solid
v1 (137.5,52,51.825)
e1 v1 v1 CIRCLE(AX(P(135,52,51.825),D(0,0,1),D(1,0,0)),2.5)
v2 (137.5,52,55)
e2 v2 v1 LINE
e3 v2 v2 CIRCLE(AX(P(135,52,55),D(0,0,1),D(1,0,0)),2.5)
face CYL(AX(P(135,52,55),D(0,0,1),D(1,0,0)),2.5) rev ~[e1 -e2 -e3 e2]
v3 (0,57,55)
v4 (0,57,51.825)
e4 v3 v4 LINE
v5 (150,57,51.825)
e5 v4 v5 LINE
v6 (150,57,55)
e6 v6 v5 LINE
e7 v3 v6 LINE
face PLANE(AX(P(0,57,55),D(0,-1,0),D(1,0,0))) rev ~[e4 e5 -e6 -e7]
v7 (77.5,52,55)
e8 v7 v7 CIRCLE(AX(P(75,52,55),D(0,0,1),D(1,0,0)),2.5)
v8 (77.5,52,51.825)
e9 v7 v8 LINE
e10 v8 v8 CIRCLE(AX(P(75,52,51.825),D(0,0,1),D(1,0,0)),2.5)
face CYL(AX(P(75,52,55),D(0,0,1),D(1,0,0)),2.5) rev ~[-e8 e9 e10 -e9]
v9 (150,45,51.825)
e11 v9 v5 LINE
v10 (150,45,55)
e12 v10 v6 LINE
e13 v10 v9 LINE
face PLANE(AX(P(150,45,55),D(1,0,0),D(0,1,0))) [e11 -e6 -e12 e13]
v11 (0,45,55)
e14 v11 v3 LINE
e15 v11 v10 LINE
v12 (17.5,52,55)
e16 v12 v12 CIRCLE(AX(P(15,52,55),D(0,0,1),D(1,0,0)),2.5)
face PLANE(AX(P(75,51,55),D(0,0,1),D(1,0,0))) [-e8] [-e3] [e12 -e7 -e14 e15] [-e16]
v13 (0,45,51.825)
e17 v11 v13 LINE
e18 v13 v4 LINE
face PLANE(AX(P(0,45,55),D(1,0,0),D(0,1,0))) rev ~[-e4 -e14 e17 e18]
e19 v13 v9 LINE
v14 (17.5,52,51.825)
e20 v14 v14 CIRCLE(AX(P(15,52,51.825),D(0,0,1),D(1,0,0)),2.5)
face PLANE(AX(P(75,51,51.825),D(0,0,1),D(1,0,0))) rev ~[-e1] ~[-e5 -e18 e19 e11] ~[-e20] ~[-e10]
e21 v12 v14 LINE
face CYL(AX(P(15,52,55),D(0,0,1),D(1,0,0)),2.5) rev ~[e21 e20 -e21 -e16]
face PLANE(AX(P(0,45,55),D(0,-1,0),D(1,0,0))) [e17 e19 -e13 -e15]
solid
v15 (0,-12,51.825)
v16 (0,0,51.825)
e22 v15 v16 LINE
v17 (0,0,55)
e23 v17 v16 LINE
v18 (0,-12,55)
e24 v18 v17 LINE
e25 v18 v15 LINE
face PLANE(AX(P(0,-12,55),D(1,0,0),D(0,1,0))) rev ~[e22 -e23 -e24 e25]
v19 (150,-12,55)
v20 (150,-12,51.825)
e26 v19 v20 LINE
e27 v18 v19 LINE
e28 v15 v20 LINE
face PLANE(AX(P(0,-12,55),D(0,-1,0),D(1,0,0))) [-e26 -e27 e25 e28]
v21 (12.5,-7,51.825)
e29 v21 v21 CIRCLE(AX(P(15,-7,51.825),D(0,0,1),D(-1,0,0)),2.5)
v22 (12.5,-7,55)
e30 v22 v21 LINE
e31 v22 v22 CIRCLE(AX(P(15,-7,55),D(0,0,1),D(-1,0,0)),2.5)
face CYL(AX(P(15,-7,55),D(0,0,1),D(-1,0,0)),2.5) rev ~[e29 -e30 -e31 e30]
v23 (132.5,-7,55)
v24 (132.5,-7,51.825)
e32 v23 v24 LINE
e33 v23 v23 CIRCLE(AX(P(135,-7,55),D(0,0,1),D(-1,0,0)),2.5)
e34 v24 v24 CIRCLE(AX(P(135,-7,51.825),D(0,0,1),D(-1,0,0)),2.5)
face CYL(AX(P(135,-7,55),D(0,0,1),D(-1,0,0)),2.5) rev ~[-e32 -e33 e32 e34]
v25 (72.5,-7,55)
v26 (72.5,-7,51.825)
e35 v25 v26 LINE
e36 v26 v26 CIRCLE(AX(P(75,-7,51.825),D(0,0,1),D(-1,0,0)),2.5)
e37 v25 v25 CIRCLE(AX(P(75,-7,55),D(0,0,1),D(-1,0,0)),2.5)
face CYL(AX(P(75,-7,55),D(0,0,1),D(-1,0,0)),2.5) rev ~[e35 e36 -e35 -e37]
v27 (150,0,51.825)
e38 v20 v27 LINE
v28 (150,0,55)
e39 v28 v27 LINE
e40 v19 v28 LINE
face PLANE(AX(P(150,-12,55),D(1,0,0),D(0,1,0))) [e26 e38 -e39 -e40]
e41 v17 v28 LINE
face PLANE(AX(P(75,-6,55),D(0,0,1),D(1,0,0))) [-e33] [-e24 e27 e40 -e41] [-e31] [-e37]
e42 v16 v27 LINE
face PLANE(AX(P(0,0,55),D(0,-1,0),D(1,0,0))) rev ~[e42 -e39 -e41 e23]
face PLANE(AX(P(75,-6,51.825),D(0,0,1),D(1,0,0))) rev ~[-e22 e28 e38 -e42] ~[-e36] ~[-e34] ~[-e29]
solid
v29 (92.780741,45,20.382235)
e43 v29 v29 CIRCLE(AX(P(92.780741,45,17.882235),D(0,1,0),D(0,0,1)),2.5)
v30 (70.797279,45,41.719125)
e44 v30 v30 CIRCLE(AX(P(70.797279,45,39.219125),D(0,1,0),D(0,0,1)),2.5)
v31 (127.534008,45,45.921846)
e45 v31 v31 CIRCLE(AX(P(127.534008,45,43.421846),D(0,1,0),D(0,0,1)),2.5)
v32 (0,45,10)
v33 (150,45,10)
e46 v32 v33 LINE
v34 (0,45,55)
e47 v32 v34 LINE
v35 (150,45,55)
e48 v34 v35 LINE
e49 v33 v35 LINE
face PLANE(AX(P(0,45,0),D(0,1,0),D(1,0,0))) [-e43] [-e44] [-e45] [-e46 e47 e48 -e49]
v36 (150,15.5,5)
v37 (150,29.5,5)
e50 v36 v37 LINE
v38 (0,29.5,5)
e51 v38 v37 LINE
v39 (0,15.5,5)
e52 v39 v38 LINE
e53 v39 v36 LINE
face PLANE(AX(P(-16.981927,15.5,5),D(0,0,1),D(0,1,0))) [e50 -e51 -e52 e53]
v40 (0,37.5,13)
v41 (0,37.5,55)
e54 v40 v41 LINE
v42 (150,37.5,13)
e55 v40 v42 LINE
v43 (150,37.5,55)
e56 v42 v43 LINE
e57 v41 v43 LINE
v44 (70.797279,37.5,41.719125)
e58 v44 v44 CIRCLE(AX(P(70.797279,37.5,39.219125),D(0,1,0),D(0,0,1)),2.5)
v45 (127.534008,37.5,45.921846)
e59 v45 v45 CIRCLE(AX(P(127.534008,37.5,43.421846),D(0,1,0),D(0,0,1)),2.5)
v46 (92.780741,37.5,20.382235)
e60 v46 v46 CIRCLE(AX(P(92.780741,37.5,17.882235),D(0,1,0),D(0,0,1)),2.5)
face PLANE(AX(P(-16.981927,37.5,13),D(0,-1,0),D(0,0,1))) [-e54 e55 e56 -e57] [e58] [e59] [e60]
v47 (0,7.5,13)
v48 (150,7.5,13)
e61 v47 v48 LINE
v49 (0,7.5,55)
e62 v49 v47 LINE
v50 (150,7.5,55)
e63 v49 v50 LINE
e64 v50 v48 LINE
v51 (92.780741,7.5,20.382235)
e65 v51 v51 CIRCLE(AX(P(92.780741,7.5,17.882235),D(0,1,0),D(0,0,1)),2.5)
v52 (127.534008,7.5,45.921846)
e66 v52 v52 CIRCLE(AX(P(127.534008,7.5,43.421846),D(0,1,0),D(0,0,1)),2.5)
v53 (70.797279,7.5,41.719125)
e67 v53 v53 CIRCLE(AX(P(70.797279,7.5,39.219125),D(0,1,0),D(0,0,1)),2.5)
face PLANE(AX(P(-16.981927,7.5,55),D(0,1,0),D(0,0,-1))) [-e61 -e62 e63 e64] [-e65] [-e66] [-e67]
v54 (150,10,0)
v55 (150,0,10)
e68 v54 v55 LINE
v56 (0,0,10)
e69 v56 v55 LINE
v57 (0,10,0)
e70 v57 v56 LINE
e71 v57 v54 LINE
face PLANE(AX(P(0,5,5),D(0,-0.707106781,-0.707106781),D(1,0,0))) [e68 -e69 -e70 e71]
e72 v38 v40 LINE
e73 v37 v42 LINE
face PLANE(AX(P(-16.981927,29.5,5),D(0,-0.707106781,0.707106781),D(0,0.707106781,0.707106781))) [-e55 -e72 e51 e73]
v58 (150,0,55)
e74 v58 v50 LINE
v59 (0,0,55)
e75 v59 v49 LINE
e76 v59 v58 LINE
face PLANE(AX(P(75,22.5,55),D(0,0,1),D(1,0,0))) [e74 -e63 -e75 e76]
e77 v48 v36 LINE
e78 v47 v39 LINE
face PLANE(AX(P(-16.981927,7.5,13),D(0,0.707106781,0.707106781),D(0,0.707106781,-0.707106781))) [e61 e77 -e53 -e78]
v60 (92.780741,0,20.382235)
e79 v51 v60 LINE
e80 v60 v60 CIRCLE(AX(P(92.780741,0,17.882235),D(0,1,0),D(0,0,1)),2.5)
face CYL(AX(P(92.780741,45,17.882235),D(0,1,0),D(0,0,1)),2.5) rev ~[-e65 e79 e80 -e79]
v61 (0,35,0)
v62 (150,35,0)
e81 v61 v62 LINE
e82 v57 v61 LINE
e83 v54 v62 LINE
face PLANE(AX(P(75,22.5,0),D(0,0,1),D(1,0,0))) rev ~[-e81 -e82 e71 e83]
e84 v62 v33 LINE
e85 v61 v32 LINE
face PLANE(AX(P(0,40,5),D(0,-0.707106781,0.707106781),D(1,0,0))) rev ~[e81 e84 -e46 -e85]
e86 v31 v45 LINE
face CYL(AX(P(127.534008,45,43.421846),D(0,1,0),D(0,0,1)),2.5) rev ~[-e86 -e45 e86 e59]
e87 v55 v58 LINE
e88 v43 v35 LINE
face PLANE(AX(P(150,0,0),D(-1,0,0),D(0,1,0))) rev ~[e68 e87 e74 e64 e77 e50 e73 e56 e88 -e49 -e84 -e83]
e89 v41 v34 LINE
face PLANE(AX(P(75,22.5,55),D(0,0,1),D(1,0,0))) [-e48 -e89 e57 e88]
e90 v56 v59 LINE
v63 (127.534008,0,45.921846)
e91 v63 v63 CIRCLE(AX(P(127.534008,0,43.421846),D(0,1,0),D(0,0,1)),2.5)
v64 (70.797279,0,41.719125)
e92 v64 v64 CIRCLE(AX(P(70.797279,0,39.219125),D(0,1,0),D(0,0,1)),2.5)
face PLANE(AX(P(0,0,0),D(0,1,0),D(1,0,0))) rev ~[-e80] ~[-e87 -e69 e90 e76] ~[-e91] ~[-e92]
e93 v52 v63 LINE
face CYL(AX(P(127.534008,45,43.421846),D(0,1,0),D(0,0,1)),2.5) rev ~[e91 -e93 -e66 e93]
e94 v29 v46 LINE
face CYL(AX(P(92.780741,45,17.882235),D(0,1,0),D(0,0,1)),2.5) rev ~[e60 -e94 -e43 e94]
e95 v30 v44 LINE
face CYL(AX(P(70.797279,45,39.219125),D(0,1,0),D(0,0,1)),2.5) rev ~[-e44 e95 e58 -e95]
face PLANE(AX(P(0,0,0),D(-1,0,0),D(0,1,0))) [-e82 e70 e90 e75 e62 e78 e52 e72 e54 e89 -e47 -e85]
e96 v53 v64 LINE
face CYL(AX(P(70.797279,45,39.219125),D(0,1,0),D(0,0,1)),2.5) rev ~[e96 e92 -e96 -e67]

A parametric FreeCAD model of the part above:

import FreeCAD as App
import Part
import Sketcher


def edges_at(feature, points):
    """Names of the edges that pass closest to the given points."""
    edges = feature.Shape.Edges
    near = lambda p: min(range(len(edges)), key=lambda i: edges[i].distToShape(Part.Vertex(*p))[0])
    return sorted({f"Edge{near(p) + 1}" for p in points})

doc = App.newDocument("Part")
body = doc.addObject("PartDesign::Body", "Body")

# Sketch on XY plane
sketch1 = body.newObject("Sketcher::SketchObject", "Sketch")
sketch1.AttachmentSupport = (doc.getObject("XY_Plane"), [""])
sketch1.MapMode = "FlatFace"
sketch1.addGeometry([
    Part.LineSegment(App.Vector(0, 45, 0), App.Vector(0, 0, 0)),
    Part.LineSegment(App.Vector(0, 0, 0), App.Vector(150, 0, 0)),
    Part.LineSegment(App.Vector(150, 0, 0), App.Vector(150, 45, 0)),
    Part.LineSegment(App.Vector(150, 45, 0), App.Vector(0, 45, 0)),
], False)
sketch1.addConstraint([
    Sketcher.Constraint("Coincident", 0, 2, 1, 1),
    Sketcher.Constraint("Coincident", 1, 2, 2, 1),
    Sketcher.Constraint("Coincident", 2, 2, 3, 1),
    Sketcher.Constraint("Coincident", 3, 2, 0, 1),
    Sketcher.Constraint("Vertical", 0),
    Sketcher.Constraint("Horizontal", 1),
    Sketcher.Constraint("Vertical", 2),
    Sketcher.Constraint("Horizontal", 3),
    Sketcher.Constraint("Coincident", 0, 2, -1, 1),
    Sketcher.Constraint("DistanceX", 1, 1, 1, 2, 150.0),
    Sketcher.Constraint("DistanceY", 0, 2, 0, 1, 45.0),
])
pad1 = body.newObject("PartDesign::Pad", "Pad")
pad1.Profile = sketch1
pad1.Length = 55

# Sketch on YZ plane
sketch2 = body.newObject("Sketcher::SketchObject", "Sketch001")
sketch2.AttachmentSupport = (doc.getObject("YZ_Plane"), [""])
sketch2.MapMode = "FlatFace"
sketch2.AttachmentOffset = App.Placement(App.Vector(0, 0, 150), App.Rotation())
sketch2.addGeometry([
    Part.LineSegment(App.Vector(38, 13, 0), App.Vector(38, 55, 0)),  # 0
    Part.LineSegment(App.Vector(38, 55, 0), App.Vector(8, 55, 0)),  # 1
    Part.LineSegment(App.Vector(8, 55, 0), App.Vector(8, 13, 0)),  # 2
    Part.LineSegment(App.Vector(8, 13, 0), App.Vector(16, 5, 0)),  # 3
    Part.LineSegment(App.Vector(16, 5, 0), App.Vector(30, 5, 0)),  # 4
    Part.LineSegment(App.Vector(30, 5, 0), App.Vector(38, 13, 0)),  # 5
], False)
sketch2.addConstraint([
    Sketcher.Constraint("Coincident", 0, 2, 1, 1),
    Sketcher.Constraint("Coincident", 1, 2, 2, 1),
    Sketcher.Constraint("Coincident", 2, 2, 3, 1),
    Sketcher.Constraint("Coincident", 3, 2, 4, 1),
    Sketcher.Constraint("Coincident", 4, 2, 5, 1),
    Sketcher.Constraint("Coincident", 5, 2, 0, 1),
    Sketcher.Constraint("Vertical", 0),
    Sketcher.Constraint("Horizontal", 1),
    Sketcher.Constraint("Vertical", 2),
    Sketcher.Constraint("Horizontal", 4),
    Sketcher.Constraint("Perpendicular", 3, 5),
    Sketcher.Constraint("Horizontal", 2, 2, 5, 2),
    Sketcher.Constraint("Equal", 3, 5),
    Sketcher.Constraint("DistanceX", 1, 2, 1, 1, 30.0),
    Sketcher.Constraint("DistanceX", 4, 1, 4, 2, 14.0),
    Sketcher.Constraint("DistanceY", 0, 1, 0, 2, 42.0),
    Sketcher.Constraint("DistanceY", -1, 1, 0, 2, 55.0),
    Sketcher.Constraint("DistanceX", -1, 1, 0, 2, 37.5),
])
pocket1 = body.newObject("PartDesign::Pocket", "Pocket")
pocket1.Profile = sketch2
pocket1.Type = "ThroughAll"
pocket1.Midplane = True
doc.recompute()

chamfer = body.newObject("PartDesign::Chamfer", "Chamfer")
chamfer.Base = (pocket1, edges_at(pocket1, [(75, 45, 0), (75, 0, 0)]))
chamfer.Size = 10

# Sketch on XZ plane
sketch3 = body.newObject("Sketcher::SketchObject", "Sketch002")
sketch3.AttachmentSupport = (doc.getObject("XZ_Plane"), [""])
sketch3.MapMode = "FlatFace"
sketch3.AttachmentOffset = App.Placement(App.Vector(0, 0, -45), App.Rotation())
sketch3.addGeometry([
    Part.Circle(App.Vector(92.8, 17.9, 0), App.Vector(0, 0, 1), 2.5),
    Part.Circle(App.Vector(127.5, 43.4, 0), App.Vector(0, 0, 1), 2.5),
    Part.Circle(App.Vector(70.8, 39.2, 0), App.Vector(0, 0, 1), 2.5),
], False)
sketch3.addConstraint([
    Sketcher.Constraint("Equal", 0, 1),
    Sketcher.Constraint("Equal", 1, 2),
    Sketcher.Constraint("Diameter", 0, 5.0),
    Sketcher.Constraint("DistanceX", -1, 1, 0, 3, 92.780741),
    Sketcher.Constraint("DistanceX", -1, 1, 1, 3, 127.534008),
    Sketcher.Constraint("DistanceX", -1, 1, 2, 3, 70.797279),
    Sketcher.Constraint("DistanceY", 0, 3, 1, 3, 25.53961),
    Sketcher.Constraint("DistanceY", 0, 3, 2, 3, 21.336889),
    Sketcher.Constraint("DistanceY", -1, 1, 0, 3, 17.882235),
])
pocket2 = body.newObject("PartDesign::Pocket", "Pocket001")
pocket2.Profile = sketch3
pocket2.Type = "ThroughAll"
pocket2.Reversed = True
body2 = doc.addObject("PartDesign::Body", "Body001")

# Sketch on XY plane
sketch4 = body2.newObject("Sketcher::SketchObject", "Sketch003")
sketch4.AttachmentSupport = (doc.getObject("XY_Plane001"), [""])
sketch4.MapMode = "FlatFace"
sketch4.AttachmentOffset = App.Placement(App.Vector(0, 0, 55), App.Rotation())
sketch4.addGeometry([
    Part.LineSegment(App.Vector(0, 57, 0), App.Vector(0, 45, 0)),  # 0
    Part.LineSegment(App.Vector(0, 45, 0), App.Vector(150, 45, 0)),  # 1
    Part.LineSegment(App.Vector(150, 45, 0), App.Vector(150, 57, 0)),  # 2
    Part.LineSegment(App.Vector(150, 57, 0), App.Vector(0, 57, 0)),  # 3
    Part.Circle(App.Vector(15, 52, 0), App.Vector(0, 0, 1), 2.5),  # 4
    Part.Circle(App.Vector(75, 52, 0), App.Vector(0, 0, 1), 2.5),  # 5
    Part.Circle(App.Vector(135, 52, 0), App.Vector(0, 0, 1), 2.5),  # 6
], False)
sketch4.addConstraint([
    Sketcher.Constraint("Coincident", 0, 2, 1, 1),
    Sketcher.Constraint("Coincident", 1, 2, 2, 1),
    Sketcher.Constraint("Coincident", 2, 2, 3, 1),
    Sketcher.Constraint("Coincident", 3, 2, 0, 1),
    Sketcher.Constraint("Vertical", 0),
    Sketcher.Constraint("Horizontal", 1),
    Sketcher.Constraint("Vertical", 2),
    Sketcher.Constraint("Horizontal", 3),
    Sketcher.Constraint("Equal", 4, 5),
    Sketcher.Constraint("Equal", 5, 6),
    Sketcher.Constraint("PointOnObject", 0, 2, -2),
    Sketcher.Constraint("Horizontal", 4, 3, 5, 3),
    Sketcher.Constraint("Horizontal", 5, 3, 6, 3),
    Sketcher.Constraint("Diameter", 4, 5.0),
    Sketcher.Constraint("DistanceX", 1, 1, 1, 2, 150.0),
    Sketcher.Constraint("DistanceY", 0, 2, 0, 1, 12.0),
    Sketcher.Constraint("DistanceX", -1, 1, 4, 3, 15.0),
    Sketcher.Constraint("DistanceY", -1, 1, 4, 3, 52.0),
    Sketcher.Constraint("DistanceX", -1, 1, 5, 3, 75.0),
    Sketcher.Constraint("DistanceX", -1, 1, 6, 3, 135.0),
    Sketcher.Constraint("DistanceY", -1, 1, 0, 2, 45.0),
])
pad2 = body2.newObject("PartDesign::Pad", "Pad001")
pad2.Profile = sketch4
pad2.Length = 3.175
pad2.Reversed = True
body3 = doc.addObject("PartDesign::Body", "Body002")

# Sketch on XY plane
sketch5 = body3.newObject("Sketcher::SketchObject", "Sketch004")
sketch5.AttachmentSupport = (doc.getObject("XY_Plane002"), [""])
sketch5.MapMode = "FlatFace"
sketch5.AttachmentOffset = App.Placement(App.Vector(0, 0, 55), App.Rotation())
sketch5.addGeometry([
    Part.LineSegment(App.Vector(0, 0, 0), App.Vector(0, -12, 0)),  # 0
    Part.LineSegment(App.Vector(0, -12, 0), App.Vector(150, -12, 0)),  # 1
    Part.LineSegment(App.Vector(150, -12, 0), App.Vector(150, 0, 0)),  # 2
    Part.LineSegment(App.Vector(150, 0, 0), App.Vector(0, 0, 0)),  # 3
    Part.Circle(App.Vector(15, -7, 0), App.Vector(0, 0, 1), 2.5),  # 4
    Part.Circle(App.Vector(75, -7, 0), App.Vector(0, 0, 1), 2.5),  # 5
    Part.Circle(App.Vector(135, -7, 0), App.Vector(0, 0, 1), 2.5),  # 6
], False)
sketch5.addConstraint([
    Sketcher.Constraint("Coincident", 0, 2, 1, 1),
    Sketcher.Constraint("Coincident", 1, 2, 2, 1),
    Sketcher.Constraint("Coincident", 2, 2, 3, 1),
    Sketcher.Constraint("Coincident", 3, 2, 0, 1),
    Sketcher.Constraint("Vertical", 0),
    Sketcher.Constraint("Horizontal", 1),
    Sketcher.Constraint("Vertical", 2),
    Sketcher.Constraint("Horizontal", 3),
    Sketcher.Constraint("Coincident", 3, 2, -1, 1),
    Sketcher.Constraint("Equal", 4, 5),
    Sketcher.Constraint("Equal", 5, 6),
    Sketcher.Constraint("Horizontal", 4, 3, 5, 3),
    Sketcher.Constraint("Horizontal", 5, 3, 6, 3),
    Sketcher.Constraint("Diameter", 4, 5.0),
    Sketcher.Constraint("DistanceX", 1, 1, 1, 2, 150.0),
    Sketcher.Constraint("DistanceY", 0, 2, 0, 1, 12.0),
    Sketcher.Constraint("DistanceX", -1, 1, 4, 3, 15.0),
    Sketcher.Constraint("DistanceY", 4, 3, -1, 1, 7.0),
    Sketcher.Constraint("DistanceX", -1, 1, 5, 3, 75.0),
    Sketcher.Constraint("DistanceX", -1, 1, 6, 3, 135.0),
])
pad3 = body3.newObject("PartDesign::Pad", "Pad002")
pad3.Profile = sketch5
pad3.Length = 3.175
pad3.Reversed = True

doc.recompute()
